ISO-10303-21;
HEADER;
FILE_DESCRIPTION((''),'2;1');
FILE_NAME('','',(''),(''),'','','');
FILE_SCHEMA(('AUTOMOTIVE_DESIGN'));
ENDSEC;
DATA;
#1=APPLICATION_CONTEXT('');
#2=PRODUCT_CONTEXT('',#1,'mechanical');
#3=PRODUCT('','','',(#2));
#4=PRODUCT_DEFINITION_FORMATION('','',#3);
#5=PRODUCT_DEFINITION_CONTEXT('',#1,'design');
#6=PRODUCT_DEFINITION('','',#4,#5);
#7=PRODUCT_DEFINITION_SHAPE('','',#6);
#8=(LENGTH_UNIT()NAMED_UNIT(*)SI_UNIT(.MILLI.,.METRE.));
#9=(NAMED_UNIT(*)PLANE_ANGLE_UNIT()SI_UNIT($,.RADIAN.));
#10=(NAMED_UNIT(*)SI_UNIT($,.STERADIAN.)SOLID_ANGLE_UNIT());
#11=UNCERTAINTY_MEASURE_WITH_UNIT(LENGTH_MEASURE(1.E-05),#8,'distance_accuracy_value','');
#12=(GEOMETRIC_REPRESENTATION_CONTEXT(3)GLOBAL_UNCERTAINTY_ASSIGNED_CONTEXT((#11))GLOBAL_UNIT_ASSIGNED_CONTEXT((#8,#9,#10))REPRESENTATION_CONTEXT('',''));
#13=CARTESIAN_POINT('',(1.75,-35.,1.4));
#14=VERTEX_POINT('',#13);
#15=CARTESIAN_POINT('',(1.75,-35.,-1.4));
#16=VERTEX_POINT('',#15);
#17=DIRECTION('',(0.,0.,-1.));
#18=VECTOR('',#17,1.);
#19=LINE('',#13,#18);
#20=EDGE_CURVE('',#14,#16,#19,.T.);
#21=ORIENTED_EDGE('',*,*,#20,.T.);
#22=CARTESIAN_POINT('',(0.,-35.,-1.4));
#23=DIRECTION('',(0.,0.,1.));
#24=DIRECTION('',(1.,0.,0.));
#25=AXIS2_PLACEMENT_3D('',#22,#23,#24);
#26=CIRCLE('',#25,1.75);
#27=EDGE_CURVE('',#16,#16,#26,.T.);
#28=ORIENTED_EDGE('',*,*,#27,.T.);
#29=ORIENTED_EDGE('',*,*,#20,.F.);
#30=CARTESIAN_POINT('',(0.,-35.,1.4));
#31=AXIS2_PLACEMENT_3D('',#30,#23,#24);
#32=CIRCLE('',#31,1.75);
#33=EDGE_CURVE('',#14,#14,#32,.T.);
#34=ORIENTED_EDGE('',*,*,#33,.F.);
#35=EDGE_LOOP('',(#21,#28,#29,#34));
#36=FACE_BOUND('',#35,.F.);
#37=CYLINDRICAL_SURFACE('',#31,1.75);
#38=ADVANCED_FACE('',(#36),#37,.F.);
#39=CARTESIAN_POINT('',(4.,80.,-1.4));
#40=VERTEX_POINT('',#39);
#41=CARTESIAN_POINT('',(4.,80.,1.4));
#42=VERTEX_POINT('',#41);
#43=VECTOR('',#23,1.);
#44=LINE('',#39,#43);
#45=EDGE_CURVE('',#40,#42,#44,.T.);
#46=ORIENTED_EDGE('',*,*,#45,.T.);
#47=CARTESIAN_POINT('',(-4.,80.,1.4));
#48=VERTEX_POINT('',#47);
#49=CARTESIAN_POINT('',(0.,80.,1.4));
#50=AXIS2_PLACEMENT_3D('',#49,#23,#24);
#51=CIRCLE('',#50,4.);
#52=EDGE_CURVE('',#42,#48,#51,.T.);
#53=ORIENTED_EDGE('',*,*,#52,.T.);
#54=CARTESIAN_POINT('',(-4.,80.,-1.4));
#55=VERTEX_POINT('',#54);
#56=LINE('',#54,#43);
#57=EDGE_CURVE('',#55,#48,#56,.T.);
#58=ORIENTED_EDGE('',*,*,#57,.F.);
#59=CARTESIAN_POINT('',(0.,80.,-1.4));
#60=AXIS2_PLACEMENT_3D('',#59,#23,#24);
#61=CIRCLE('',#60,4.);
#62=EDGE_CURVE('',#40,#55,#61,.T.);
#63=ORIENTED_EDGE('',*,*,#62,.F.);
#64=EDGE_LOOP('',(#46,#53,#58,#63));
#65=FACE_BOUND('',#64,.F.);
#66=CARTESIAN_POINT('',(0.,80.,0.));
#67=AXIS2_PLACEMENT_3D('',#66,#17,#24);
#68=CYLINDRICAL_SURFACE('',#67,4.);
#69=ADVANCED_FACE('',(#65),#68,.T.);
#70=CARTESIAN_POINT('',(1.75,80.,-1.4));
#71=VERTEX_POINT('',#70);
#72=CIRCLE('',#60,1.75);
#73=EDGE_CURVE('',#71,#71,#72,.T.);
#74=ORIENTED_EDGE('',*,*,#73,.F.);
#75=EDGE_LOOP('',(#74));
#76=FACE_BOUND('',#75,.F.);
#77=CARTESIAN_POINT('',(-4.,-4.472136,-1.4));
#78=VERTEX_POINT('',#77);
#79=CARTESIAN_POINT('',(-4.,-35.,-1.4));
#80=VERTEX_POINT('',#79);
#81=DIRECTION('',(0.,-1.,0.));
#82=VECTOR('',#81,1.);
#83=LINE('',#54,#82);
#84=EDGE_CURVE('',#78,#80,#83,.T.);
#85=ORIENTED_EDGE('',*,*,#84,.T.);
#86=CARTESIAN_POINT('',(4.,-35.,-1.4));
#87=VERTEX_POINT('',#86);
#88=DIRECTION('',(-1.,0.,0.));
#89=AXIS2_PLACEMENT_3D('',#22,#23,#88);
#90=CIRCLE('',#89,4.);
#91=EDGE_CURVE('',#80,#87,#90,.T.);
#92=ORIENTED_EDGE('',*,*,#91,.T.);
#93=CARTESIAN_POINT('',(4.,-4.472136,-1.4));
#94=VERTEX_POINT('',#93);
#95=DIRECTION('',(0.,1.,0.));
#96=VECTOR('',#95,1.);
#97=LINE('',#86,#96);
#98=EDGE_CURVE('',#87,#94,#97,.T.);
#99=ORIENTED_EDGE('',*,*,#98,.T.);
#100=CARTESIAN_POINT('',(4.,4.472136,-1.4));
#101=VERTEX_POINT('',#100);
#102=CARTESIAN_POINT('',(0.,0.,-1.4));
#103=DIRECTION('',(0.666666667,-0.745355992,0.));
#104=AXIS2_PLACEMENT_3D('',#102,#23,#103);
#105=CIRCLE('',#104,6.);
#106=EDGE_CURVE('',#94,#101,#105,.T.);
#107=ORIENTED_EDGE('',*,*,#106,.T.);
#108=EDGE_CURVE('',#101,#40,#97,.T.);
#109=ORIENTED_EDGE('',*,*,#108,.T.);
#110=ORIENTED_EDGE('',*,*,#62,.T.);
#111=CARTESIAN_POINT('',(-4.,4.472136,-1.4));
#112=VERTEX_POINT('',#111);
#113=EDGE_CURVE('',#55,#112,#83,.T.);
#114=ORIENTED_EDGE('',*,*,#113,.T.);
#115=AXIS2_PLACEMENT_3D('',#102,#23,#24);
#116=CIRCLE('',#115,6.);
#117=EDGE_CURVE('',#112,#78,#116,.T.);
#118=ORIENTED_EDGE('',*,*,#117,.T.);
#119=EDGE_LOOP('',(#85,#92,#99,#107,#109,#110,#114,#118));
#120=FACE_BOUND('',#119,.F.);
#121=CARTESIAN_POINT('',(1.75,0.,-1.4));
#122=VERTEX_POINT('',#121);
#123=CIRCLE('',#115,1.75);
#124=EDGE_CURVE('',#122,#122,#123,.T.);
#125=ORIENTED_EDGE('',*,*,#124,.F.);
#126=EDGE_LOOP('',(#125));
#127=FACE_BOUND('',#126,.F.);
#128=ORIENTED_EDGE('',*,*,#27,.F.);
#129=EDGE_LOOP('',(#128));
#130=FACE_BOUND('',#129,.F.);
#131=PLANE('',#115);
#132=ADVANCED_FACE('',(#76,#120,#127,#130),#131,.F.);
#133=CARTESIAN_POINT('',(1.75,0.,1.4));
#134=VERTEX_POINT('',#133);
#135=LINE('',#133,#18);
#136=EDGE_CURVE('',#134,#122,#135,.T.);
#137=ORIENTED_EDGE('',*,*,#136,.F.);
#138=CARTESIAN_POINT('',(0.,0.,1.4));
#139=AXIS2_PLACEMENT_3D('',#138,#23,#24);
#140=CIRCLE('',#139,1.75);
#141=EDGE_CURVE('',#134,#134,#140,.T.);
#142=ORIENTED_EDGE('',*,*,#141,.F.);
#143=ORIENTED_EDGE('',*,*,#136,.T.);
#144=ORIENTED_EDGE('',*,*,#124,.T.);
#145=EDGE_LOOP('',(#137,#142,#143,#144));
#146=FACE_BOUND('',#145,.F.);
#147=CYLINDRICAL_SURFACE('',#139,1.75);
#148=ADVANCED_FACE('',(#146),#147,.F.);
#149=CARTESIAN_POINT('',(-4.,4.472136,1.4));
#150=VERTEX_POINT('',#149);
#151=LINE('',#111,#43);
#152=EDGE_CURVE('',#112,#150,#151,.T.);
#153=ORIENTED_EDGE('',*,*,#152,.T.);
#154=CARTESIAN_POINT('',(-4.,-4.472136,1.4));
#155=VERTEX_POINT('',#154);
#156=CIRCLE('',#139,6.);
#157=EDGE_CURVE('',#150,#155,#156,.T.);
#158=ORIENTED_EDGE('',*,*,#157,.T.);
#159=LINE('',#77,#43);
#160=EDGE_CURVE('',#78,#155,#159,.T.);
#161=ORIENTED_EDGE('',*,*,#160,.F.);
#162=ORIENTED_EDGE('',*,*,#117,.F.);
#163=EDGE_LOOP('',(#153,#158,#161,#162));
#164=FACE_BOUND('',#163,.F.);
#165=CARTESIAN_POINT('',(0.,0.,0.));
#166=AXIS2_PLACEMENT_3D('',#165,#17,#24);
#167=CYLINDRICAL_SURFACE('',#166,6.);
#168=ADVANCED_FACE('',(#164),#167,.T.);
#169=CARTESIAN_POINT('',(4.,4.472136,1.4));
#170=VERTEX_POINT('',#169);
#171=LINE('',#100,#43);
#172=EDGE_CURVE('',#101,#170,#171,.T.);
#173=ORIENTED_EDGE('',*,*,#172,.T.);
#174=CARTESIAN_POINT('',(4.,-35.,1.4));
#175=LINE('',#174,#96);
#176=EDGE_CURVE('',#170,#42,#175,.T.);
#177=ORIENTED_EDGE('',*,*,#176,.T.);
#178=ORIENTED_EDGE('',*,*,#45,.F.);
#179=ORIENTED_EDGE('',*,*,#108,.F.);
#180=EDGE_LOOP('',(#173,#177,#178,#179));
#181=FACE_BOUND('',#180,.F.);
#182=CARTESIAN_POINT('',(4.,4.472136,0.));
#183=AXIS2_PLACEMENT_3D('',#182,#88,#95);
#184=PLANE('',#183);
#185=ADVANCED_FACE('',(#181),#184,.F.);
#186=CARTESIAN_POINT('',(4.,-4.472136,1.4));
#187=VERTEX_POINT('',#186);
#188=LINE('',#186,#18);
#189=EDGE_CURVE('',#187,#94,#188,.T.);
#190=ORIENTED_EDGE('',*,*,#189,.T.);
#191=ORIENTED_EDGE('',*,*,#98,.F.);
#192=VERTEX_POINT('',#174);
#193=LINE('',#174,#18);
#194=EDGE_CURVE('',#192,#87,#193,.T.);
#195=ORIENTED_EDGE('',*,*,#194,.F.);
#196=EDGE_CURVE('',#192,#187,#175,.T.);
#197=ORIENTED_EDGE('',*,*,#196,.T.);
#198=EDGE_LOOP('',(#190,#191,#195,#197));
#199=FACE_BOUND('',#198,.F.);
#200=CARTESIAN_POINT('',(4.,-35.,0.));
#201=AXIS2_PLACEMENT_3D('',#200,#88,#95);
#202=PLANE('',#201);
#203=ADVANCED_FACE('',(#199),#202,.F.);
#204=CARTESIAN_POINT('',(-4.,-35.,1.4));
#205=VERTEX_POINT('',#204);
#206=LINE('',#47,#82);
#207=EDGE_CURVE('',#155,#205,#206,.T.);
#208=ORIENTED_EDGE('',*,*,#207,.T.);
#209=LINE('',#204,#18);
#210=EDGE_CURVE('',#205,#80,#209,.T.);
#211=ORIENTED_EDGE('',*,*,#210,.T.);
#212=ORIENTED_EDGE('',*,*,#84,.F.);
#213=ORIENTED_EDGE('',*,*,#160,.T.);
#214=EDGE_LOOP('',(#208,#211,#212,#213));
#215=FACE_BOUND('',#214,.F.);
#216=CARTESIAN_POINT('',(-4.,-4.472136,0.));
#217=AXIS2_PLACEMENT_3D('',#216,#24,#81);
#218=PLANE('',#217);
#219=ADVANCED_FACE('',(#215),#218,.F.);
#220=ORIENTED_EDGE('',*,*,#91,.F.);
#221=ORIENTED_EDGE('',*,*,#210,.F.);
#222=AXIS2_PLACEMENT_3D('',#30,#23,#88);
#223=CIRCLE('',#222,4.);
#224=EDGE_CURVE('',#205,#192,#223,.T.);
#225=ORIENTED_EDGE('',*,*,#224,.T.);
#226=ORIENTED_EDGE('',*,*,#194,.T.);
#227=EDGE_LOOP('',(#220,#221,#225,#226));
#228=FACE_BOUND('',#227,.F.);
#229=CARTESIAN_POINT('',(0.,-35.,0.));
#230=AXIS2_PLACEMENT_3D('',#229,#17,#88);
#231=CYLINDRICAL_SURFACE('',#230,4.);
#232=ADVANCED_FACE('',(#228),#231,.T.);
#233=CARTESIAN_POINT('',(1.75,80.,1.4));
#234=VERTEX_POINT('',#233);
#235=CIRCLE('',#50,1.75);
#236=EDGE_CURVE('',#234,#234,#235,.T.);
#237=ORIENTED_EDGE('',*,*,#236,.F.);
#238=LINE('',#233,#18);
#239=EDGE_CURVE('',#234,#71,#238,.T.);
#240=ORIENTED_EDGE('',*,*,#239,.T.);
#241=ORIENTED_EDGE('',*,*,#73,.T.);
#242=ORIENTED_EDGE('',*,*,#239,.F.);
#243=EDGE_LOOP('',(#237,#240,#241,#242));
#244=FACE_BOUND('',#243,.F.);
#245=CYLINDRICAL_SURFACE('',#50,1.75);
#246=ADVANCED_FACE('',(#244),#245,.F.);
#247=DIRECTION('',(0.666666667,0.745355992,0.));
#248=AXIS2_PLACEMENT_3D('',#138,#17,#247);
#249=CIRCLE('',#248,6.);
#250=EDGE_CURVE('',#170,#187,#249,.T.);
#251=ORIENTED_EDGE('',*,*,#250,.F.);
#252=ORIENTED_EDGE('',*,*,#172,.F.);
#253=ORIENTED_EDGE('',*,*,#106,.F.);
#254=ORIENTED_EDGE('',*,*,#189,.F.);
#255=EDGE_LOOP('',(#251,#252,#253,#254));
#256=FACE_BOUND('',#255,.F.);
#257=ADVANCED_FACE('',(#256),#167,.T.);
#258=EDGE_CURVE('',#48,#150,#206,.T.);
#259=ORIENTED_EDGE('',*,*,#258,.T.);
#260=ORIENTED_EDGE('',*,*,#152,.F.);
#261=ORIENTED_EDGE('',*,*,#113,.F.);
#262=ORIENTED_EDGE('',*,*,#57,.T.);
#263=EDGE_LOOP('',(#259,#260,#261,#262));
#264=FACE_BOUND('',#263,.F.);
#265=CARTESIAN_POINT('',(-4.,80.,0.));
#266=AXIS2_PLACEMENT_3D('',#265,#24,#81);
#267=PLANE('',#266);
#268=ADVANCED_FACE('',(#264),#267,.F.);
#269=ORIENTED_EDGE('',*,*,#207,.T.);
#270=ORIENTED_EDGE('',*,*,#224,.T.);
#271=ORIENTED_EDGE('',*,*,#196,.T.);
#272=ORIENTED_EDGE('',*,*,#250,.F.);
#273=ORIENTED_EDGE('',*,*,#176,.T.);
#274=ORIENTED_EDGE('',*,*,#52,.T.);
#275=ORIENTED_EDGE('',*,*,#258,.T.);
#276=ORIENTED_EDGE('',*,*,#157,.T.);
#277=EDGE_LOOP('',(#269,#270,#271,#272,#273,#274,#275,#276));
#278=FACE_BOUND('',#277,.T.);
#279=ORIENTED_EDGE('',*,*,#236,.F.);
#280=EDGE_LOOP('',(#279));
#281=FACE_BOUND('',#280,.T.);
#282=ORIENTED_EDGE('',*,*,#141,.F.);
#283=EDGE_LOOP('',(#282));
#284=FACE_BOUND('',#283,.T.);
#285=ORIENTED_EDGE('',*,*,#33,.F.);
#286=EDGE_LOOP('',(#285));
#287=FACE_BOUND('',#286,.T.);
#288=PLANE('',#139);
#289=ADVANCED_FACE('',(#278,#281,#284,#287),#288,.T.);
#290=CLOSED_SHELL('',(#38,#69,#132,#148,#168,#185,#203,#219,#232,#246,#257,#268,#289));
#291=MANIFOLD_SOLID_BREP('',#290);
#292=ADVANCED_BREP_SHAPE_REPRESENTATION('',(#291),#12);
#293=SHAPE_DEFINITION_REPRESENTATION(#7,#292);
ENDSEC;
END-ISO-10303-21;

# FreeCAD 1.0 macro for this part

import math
import FreeCAD as App
import Part
import Sketcher
from FreeCAD import Vector
Q = App.Units.Quantity

doc = App.newDocument("Part")
params = doc.addObject("Spreadsheet::Sheet", "Params")
for row, (alias, value) in enumerate([
    ("sketch1_radius", "6 mm"),
    ("sketch1_radius2", "4 mm"),
    ("pad1_length", "2.8 mm"),
    ("sketch2_diameter", "3.5 mm"),
    ("pocket1_length", "3.5 mm"),
], start=1):
    params.set(f"A{row}", alias)
    params.set(f"B{row}", "=" + value)
    params.setAlias(f"B{row}", alias)

body = doc.addObject("PartDesign::Body", "Body")

# Sketch on XY plane
sketch1 = doc.addObject("Sketcher::SketchObject", "Sketch")
body.addObject(sketch1)
sketch1.AttachmentSupport = (doc.XY_Plane, [""])
sketch1.MapMode = "FlatFace"
sketch1.addGeometry([
    Part.ArcOfCircle(Part.Circle(Vector(0, 0, 0), Vector(0, 0, 1), 6), math.radians(-48), math.radians(48)),  # 0
    Part.LineSegment(Vector(4, 4.5, 0), Vector(4, 80, 0)),  # 1
    Part.ArcOfCircle(Part.Circle(Vector(0, 80, 0), Vector(0, 0, 1), 4), math.radians(0), math.radians(180)),  # 2
    Part.LineSegment(Vector(-4, 80, 0), Vector(-4, 4.5, 0)),  # 3
    Part.ArcOfCircle(Part.Circle(Vector(0, 0, 0), Vector(0, 0, 1), 6), math.radians(132), math.radians(228)),  # 4
    Part.LineSegment(Vector(-4, -4.5, 0), Vector(-4, -35, 0)),  # 5
    Part.ArcOfCircle(Part.Circle(Vector(0, -35, 0), Vector(0, 0, 1), 4), math.radians(180), math.radians(360)),  # 6
    Part.LineSegment(Vector(4, -35, 0), Vector(4, -4.5, 0)),  # 7
], False)
sketch1.addConstraint([
    Sketcher.Constraint("Coincident", 0, 2, 1, 1),
    Sketcher.Constraint("Tangent", 1, 2, 2, 1),
    Sketcher.Constraint("Tangent", 2, 2, 3, 1),
    Sketcher.Constraint("Coincident", 3, 2, 4, 1),
    Sketcher.Constraint("Coincident", 4, 2, 5, 1),
    Sketcher.Constraint("Tangent", 5, 2, 6, 1),
    Sketcher.Constraint("Tangent", 6, 2, 7, 1),
    Sketcher.Constraint("Coincident", 7, 2, 0, 1),
    Sketcher.Constraint("Vertical", 1),
    Sketcher.Constraint("Vertical", 3),
    Sketcher.Constraint("Vertical", 5),
    Sketcher.Constraint("Vertical", 7),
    Sketcher.Constraint("Coincident", 0, 3, -1, 1),
    Sketcher.Constraint("Coincident", 4, 3, -1, 1),
    Sketcher.Constraint("Equal", 0, 4),
    Sketcher.Constraint("Equal", 2, 6),
    Sketcher.Constraint("PointOnObject", 2, 3, -2),
    Sketcher.Constraint("PointOnObject", 6, 3, -2),
    Sketcher.Constraint("Radius", 0, Q("6 mm")),
    Sketcher.Constraint("Radius", 2, Q("4 mm")),
    Sketcher.Constraint("DistanceY", -1, 1, 2, 3, Q("80 mm")),
    Sketcher.Constraint("DistanceY", 6, 3, -1, 1, Q("35 mm")),
])
sketch1.setExpression("Constraints[18]", "Params.sketch1_radius")
sketch1.setExpression("Constraints[19]", "Params.sketch1_radius2")
pad1 = doc.addObject("PartDesign::Pad", "Pad")
body.addObject(pad1)
pad1.Profile = sketch1
pad1.setExpression("Length", "Params.pad1_length")
pad1.Midplane = True

# Sketch on XY plane
sketch2 = doc.addObject("Sketcher::SketchObject", "Sketch001")
body.addObject(sketch2)
sketch2.AttachmentSupport = (doc.XY_Plane, [""])
sketch2.MapMode = "FlatFace"
sketch2.AttachmentOffset = App.Placement(Vector(0, 0, 1.4), App.Rotation())
sketch2.addGeometry([
    Part.Circle(Vector(0, 0, 0), Vector(0, 0, 1), 1.8),
    Part.Circle(Vector(0, 80, 0), Vector(0, 0, 1), 1.8),
    Part.Circle(Vector(0, -35, 0), Vector(0, 0, 1), 1.8),
], False)
sketch2.addConstraint([
    Sketcher.Constraint("Coincident", 0, 3, -1, 1),
    Sketcher.Constraint("Equal", 0, 1),
    Sketcher.Constraint("Equal", 1, 2),
    Sketcher.Constraint("PointOnObject", 1, 3, -2),
    Sketcher.Constraint("PointOnObject", 2, 3, -2),
    Sketcher.Constraint("Diameter", 0, Q("3.5 mm")),
    Sketcher.Constraint("DistanceY", -1, 1, 1, 3, Q("80 mm")),
    Sketcher.Constraint("DistanceY", 2, 3, -1, 1, Q("35 mm")),
])
sketch2.setExpression("Constraints[5]", "Params.sketch2_diameter")
pocket1 = doc.addObject("PartDesign::Pocket", "Pocket")
body.addObject(pocket1)
pocket1.Profile = sketch2
pocket1.setExpression("Length", "Params.pocket1_length")

doc.recompute()
